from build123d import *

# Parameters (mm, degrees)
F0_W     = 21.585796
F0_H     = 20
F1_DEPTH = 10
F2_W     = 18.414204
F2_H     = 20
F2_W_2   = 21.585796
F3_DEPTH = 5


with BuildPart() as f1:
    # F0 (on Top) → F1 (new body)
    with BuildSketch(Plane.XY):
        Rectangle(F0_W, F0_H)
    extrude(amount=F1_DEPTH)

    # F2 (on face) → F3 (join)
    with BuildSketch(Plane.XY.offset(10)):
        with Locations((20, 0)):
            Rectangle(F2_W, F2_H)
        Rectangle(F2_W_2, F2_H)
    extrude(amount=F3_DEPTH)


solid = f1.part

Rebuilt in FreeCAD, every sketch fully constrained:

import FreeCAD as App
import Part
import Sketcher

V = App.Vector
Q = App.Units.Quantity

doc = App.newDocument("Part")
body = doc.addObject("PartDesign::Body", "Body")

# Sketch on XY plane
sketch1 = body.newObject("Sketcher::SketchObject", "Sketch")
sketch1.AttachmentSupport = (doc.getObject("XY_Plane"), [""])
sketch1.MapMode = "FlatFace"
sketch1.addGeometry([
    Part.LineSegment(V(-10.792898, 10, 0), V(-10.792898, -10, 0)),
    Part.LineSegment(V(-10.792898, -10, 0), V(10.792898, -10, 0)),
    Part.LineSegment(V(10.792898, -10, 0), V(10.792898, 10, 0)),
    Part.LineSegment(V(10.792898, 10, 0), V(-10.792898, 10, 0)),
], False)
sketch1.addConstraint([
    Sketcher.Constraint("Coincident", 0, 2, 1, 1),
    Sketcher.Constraint("Coincident", 1, 2, 2, 1),
    Sketcher.Constraint("Coincident", 2, 2, 3, 1),
    Sketcher.Constraint("Coincident", 3, 2, 0, 1),
    Sketcher.Constraint("Vertical", 0),
    Sketcher.Constraint("Horizontal", 1),
    Sketcher.Constraint("Vertical", 2),
    Sketcher.Constraint("Horizontal", 3),
    Sketcher.Constraint("Symmetric", 0, 2, 2, 2, -1, 1),
    Sketcher.Constraint("DistanceY", 0, 2, 0, 1, Q("20 mm")),
    Sketcher.Constraint("DistanceX", 1, 1, 1, 2, Q("21.585796 mm")),
])
pad1 = body.newObject("PartDesign::Pad", "Pad")
pad1.Profile = sketch1
pad1.Length = 10

# Sketch on XY plane
sketch2 = body.newObject("Sketcher::SketchObject", "Sketch001")
sketch2.AttachmentSupport = (doc.getObject("XY_Plane"), [""])
sketch2.MapMode = "FlatFace"
sketch2.AttachmentOffset = App.Placement(V(0, 0, 10), App.Rotation())
sketch2.addGeometry([
    Part.LineSegment(V(29.207102, -10, 0), V(29.207102, 10, 0)),
    Part.LineSegment(V(29.207102, 10, 0), V(-10.792898, 10, 0)),
    Part.LineSegment(V(-10.792898, 10, 0), V(-10.792898, -10, 0)),
    Part.LineSegment(V(-10.792898, -10, 0), V(29.207102, -10, 0)),
], False)
sketch2.addConstraint([
    Sketcher.Constraint("Coincident", 0, 2, 1, 1),
    Sketcher.Constraint("Coincident", 1, 2, 2, 1),
    Sketcher.Constraint("Coincident", 2, 2, 3, 1),
    Sketcher.Constraint("Coincident", 3, 2, 0, 1),
    Sketcher.Constraint("Vertical", 0),
    Sketcher.Constraint("Horizontal", 1),
    Sketcher.Constraint("Vertical", 2),
    Sketcher.Constraint("Horizontal", 3),
    Sketcher.Constraint("DistanceX", 1, 2, 1, 1, Q("40 mm")),
    Sketcher.Constraint("DistanceY", 0, 1, 0, 2, Q("20 mm")),
    Sketcher.Constraint("DistanceY", -1, 1, 0, 2, Q("10 mm")),
    Sketcher.Constraint("DistanceX", -1, 1, 0, 2, Q("29.207102 mm")),
])
pad2 = body.newObject("PartDesign::Pad", "Pad001")
pad2.Profile = sketch2
pad2.Length = 5

doc.recompute()
